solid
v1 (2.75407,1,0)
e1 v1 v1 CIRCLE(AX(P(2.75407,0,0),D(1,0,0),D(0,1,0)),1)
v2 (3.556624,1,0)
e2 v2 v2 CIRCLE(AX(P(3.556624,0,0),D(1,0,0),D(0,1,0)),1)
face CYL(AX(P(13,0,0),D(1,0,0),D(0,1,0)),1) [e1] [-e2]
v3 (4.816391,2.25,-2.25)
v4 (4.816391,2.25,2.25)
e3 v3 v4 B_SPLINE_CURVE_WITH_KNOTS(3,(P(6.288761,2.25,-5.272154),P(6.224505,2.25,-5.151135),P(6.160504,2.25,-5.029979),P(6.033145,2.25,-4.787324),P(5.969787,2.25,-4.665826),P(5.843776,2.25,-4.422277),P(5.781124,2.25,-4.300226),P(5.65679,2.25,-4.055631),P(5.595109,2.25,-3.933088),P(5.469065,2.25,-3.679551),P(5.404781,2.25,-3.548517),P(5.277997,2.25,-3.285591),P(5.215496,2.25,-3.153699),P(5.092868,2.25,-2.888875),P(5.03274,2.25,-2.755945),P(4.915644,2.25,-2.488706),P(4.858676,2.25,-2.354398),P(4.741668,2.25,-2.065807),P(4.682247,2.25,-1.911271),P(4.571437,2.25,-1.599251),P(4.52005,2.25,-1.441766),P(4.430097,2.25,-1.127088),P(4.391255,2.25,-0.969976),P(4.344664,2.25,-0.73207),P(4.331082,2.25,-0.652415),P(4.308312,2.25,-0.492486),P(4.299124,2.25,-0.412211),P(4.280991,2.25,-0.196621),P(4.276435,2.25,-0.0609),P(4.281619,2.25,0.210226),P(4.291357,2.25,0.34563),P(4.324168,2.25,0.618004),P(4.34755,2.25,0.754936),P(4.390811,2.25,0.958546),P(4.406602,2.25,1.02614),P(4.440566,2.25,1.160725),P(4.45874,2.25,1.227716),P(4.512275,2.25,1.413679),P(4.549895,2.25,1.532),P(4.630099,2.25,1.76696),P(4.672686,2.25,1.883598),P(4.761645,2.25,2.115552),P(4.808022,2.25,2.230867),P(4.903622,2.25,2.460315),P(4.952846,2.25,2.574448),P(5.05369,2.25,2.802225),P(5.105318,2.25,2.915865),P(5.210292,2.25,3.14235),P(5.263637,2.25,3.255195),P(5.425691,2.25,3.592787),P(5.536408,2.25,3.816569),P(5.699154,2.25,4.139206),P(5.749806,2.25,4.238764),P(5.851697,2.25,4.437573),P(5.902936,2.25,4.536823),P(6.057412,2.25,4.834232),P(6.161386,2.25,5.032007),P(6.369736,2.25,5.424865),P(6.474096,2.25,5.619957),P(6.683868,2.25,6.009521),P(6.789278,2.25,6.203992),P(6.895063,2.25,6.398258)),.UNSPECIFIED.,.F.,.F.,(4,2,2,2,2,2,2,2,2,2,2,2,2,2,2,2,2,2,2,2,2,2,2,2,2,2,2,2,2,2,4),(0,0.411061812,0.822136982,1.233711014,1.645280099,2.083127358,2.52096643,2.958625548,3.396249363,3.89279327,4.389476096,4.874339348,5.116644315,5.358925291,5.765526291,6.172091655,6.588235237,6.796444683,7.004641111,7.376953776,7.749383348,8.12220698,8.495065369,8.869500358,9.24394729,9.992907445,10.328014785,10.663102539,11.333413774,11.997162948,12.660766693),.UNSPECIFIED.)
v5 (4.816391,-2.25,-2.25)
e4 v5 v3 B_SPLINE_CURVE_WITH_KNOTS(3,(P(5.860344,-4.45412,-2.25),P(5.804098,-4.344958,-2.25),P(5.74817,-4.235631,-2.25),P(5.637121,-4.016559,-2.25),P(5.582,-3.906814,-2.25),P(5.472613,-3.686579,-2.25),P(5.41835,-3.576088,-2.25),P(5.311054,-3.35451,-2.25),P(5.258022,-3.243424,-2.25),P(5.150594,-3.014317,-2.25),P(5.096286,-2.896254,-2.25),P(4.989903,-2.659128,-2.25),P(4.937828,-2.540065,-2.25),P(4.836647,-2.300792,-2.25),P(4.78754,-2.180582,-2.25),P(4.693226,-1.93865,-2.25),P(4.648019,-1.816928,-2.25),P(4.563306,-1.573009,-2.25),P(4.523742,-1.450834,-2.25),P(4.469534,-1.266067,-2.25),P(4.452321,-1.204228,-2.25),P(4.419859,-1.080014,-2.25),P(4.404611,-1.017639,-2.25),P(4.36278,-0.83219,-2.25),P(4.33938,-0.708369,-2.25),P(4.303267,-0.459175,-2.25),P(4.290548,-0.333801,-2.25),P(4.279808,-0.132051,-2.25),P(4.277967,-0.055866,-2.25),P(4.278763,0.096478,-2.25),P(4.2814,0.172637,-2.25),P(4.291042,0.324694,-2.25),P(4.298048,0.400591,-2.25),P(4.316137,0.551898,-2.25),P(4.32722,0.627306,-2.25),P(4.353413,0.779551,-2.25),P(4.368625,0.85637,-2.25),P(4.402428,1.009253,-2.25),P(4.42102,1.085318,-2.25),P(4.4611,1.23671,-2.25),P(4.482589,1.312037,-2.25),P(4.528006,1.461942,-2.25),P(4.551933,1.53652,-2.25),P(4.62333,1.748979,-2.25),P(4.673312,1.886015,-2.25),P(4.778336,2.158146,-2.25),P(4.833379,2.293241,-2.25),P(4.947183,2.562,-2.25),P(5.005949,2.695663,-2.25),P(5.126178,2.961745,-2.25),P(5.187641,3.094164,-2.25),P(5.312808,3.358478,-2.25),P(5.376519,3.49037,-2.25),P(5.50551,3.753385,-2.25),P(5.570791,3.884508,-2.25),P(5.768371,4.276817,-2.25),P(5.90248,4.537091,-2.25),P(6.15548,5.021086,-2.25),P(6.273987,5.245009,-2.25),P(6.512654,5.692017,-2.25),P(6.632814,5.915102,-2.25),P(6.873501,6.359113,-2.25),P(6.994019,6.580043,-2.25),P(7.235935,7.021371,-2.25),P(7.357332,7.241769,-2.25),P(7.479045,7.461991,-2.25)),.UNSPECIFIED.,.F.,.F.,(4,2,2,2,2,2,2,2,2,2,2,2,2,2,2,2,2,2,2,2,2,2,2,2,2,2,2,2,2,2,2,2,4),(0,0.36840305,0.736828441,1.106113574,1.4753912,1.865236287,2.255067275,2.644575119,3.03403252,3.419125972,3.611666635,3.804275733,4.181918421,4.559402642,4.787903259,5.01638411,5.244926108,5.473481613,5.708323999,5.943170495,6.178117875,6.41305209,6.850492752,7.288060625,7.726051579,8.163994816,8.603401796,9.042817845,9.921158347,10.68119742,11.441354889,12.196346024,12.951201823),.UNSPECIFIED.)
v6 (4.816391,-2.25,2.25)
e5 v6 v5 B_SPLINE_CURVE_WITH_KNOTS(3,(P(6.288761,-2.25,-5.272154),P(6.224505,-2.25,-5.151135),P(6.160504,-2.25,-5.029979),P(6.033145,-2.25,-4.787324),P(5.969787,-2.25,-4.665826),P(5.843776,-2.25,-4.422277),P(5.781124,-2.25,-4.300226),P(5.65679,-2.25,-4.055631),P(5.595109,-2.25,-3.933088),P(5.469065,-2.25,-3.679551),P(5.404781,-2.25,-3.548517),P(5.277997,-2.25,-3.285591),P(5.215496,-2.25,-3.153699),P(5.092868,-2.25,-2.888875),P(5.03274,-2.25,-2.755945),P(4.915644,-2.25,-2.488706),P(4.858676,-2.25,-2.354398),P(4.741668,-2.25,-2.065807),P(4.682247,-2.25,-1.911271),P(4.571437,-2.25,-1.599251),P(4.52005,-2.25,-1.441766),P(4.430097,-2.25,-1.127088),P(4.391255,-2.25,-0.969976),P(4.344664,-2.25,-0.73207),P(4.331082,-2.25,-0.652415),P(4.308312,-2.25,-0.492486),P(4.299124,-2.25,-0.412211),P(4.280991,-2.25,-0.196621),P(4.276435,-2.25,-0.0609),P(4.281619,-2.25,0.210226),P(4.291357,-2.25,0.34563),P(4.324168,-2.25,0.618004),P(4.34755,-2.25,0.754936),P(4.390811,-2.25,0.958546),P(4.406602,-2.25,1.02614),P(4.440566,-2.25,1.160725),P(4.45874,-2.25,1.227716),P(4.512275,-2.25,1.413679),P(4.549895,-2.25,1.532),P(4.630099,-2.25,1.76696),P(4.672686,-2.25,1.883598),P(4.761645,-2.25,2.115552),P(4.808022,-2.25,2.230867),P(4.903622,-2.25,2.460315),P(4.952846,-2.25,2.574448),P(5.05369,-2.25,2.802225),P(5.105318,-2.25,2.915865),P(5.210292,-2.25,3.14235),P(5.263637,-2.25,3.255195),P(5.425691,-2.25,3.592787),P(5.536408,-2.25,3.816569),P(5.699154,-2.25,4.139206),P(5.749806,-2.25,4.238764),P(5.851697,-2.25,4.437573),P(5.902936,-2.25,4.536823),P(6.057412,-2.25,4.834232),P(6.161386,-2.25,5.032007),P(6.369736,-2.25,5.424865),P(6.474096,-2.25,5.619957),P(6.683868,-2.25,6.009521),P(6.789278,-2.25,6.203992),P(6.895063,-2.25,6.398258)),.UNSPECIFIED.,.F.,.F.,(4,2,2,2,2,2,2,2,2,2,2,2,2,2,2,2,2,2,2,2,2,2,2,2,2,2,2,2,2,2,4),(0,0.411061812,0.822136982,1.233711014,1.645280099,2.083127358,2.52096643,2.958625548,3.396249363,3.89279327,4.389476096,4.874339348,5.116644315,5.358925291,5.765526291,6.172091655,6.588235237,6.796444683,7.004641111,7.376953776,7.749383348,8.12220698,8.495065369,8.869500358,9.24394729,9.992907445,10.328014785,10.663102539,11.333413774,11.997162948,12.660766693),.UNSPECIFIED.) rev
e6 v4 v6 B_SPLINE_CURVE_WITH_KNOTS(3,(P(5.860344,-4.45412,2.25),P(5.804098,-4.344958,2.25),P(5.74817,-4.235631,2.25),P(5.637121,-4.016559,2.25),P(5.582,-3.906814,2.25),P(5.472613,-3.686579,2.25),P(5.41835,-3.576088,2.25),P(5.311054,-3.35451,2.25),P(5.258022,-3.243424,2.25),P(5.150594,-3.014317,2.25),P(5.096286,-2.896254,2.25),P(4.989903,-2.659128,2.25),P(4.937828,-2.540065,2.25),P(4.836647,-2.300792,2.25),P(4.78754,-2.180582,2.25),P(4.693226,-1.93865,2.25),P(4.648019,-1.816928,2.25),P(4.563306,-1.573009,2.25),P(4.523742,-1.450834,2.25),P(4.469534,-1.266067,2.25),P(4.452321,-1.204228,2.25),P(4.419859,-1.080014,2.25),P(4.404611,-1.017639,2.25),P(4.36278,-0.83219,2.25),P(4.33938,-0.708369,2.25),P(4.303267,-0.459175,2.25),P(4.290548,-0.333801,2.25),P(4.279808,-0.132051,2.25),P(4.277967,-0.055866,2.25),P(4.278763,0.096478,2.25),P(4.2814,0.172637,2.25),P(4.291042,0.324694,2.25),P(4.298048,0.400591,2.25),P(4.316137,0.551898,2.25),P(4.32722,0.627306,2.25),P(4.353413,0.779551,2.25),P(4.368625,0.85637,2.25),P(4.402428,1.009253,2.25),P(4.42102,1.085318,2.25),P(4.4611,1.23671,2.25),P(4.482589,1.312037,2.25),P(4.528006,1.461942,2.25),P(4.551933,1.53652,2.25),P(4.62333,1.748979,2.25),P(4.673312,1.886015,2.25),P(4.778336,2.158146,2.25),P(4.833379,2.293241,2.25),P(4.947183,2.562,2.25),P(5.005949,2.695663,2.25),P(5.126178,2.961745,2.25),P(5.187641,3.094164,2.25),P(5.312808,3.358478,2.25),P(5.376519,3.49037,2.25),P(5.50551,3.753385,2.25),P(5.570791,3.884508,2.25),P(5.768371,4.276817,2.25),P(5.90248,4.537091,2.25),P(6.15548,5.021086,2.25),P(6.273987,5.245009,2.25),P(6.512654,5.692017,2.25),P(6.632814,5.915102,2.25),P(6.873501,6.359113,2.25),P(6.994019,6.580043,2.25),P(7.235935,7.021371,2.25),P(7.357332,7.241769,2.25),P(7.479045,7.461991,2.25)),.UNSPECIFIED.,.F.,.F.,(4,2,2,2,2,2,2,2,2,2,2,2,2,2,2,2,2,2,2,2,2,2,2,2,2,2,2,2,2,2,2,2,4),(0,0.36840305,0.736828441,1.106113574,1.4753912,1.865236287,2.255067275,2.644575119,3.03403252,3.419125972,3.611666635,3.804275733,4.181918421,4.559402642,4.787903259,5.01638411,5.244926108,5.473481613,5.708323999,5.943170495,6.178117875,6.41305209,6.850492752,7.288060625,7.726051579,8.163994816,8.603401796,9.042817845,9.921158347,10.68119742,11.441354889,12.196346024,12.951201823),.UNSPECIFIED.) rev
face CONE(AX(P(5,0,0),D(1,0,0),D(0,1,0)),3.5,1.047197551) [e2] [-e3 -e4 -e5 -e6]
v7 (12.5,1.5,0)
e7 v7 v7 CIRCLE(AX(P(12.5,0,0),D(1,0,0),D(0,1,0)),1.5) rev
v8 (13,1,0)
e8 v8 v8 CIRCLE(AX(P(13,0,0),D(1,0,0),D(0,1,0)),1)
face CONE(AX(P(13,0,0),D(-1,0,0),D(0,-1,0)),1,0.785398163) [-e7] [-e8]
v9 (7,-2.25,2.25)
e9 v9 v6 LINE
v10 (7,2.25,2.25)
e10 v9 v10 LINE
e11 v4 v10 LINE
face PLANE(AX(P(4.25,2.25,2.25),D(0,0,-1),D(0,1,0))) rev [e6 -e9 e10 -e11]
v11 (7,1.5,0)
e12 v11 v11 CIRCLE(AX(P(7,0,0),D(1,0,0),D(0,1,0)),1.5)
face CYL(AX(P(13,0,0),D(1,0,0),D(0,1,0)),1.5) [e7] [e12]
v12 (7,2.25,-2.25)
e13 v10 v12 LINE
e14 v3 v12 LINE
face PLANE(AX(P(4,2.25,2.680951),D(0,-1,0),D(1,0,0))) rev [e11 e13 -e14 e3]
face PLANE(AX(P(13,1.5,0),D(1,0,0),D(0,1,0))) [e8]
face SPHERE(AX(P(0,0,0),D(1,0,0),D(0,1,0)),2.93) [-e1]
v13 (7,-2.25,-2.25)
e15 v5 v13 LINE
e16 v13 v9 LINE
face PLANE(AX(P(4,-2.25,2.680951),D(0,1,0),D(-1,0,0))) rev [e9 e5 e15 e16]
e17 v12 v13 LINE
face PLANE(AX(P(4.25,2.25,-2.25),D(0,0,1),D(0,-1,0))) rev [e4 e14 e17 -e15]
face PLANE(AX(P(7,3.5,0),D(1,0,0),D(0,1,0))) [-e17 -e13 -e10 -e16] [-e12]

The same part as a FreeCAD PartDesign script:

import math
import FreeCAD as App
import Part
import Sketcher
Q = App.Units.Quantity


def edges_at(feature, points):
    """Names of the edges that pass closest to the given points."""
    edges = feature.Shape.Edges
    near = lambda p: min(range(len(edges)), key=lambda i: edges[i].distToShape(Part.Vertex(*p))[0])
    return sorted({f"Edge{near(p) + 1}" for p in points})


def add_polygon(sketch, points):
    """Adds a closed chain of lines whose ends are joined by coincident constraints."""
    first, n = sketch.GeometryCount, len(points)
    for a, b in zip(points, points[1:] + points[:1]):
        sketch.addGeometry(Part.LineSegment(App.Vector(*a, 0), App.Vector(*b, 0)), False)
    for i in range(n):
        sketch.addConstraint(Sketcher.Constraint("Coincident", first + i, 2, first + (i + 1) % n, 1))

doc = App.newDocument("Part")
body = doc.addObject("PartDesign::Body", "Body")

sketch1 = doc.addObject("Sketcher::SketchObject", "Sketch")
body.addObject(sketch1)
sketch1.AttachmentSupport = (doc.XY_Plane, [""])
sketch1.MapMode = "FlatFace"
sketch1.addGeometry(Part.LineSegment(App.Vector(3.6, 1, 0), App.Vector(2.8, 1, 0)), False)
sketch1.addGeometry(Part.ArcOfCircle(Part.Circle(App.Vector(0, 0, 0), App.Vector(0, 0, 1), 2.9), math.radians(20), math.radians(180)), False)
sketch1.addGeometry(Part.LineSegment(App.Vector(-2.9, 0, 0), App.Vector(13, 0, 0)), False)
sketch1.addGeometry(Part.LineSegment(App.Vector(13, 0, 0), App.Vector(13, 1.5, 0)), False)
sketch1.addGeometry(Part.LineSegment(App.Vector(13, 1.5, 0), App.Vector(7, 1.5, 0)), False)
sketch1.addGeometry(Part.LineSegment(App.Vector(7, 1.5, 0), App.Vector(7, 3.5, 0)), False)
sketch1.addGeometry(Part.LineSegment(App.Vector(7, 3.5, 0), App.Vector(5, 3.5, 0)), False)
sketch1.addGeometry(Part.LineSegment(App.Vector(5, 3.5, 0), App.Vector(3.6, 1, 0)), False)
sketch1.addConstraint(Sketcher.Constraint("Coincident", 0, 2, 1, 1))
sketch1.addConstraint(Sketcher.Constraint("Coincident", 1, 2, 2, 1))
sketch1.addConstraint(Sketcher.Constraint("Coincident", 2, 2, 3, 1))
sketch1.addConstraint(Sketcher.Constraint("Coincident", 3, 2, 4, 1))
sketch1.addConstraint(Sketcher.Constraint("Coincident", 4, 2, 5, 1))
sketch1.addConstraint(Sketcher.Constraint("Coincident", 5, 2, 6, 1))
sketch1.addConstraint(Sketcher.Constraint("Coincident", 6, 2, 7, 1))
sketch1.addConstraint(Sketcher.Constraint("Coincident", 7, 2, 0, 1))
sketch1.addConstraint(Sketcher.Constraint("Horizontal", 0))
sketch1.addConstraint(Sketcher.Constraint("Horizontal", 2))
sketch1.addConstraint(Sketcher.Constraint("Vertical", 3))
sketch1.addConstraint(Sketcher.Constraint("Horizontal", 4))
sketch1.addConstraint(Sketcher.Constraint("Vertical", 5))
sketch1.addConstraint(Sketcher.Constraint("Horizontal", 6))
sketch1.addConstraint(Sketcher.Constraint("Coincident", 1, 3, -1, 1))
sketch1.addConstraint(Sketcher.Constraint("PointOnObject", 1, 2, -1))
sketch1.addConstraint(Sketcher.Constraint("Equal", 6, 5))
sketch1.addConstraint(Sketcher.Constraint("DistanceX", 4, 2, 4, 1, Q("6 mm")))
sketch1.addConstraint(Sketcher.Constraint("DistanceX", 6, 2, 6, 1, Q("2 mm")))
sketch1.addConstraint(Sketcher.Constraint("Angle", 7, Q("-120 deg")))
sketch1.addConstraint(Sketcher.Constraint("Radius", 1, Q("2.93 mm")))
sketch1.addConstraint(Sketcher.Constraint("DistanceY", 3, 1, 3, 2, Q("1.5 mm")))
sketch1.addConstraint(Sketcher.Constraint("DistanceY", -1, 1, 0, 2, Q("1 mm")))
sketch1.addConstraint(Sketcher.Constraint("DistanceX", -1, 1, 2, 2, Q("13 mm")))
revolution = doc.addObject("PartDesign::Revolution", "Revolution")
body.addObject(revolution)
revolution.Profile = sketch1
revolution.ReferenceAxis = (sketch1, ["H_Axis"])
revolution.Angle = 360

sketch2 = doc.addObject("Sketcher::SketchObject", "Sketch001")
body.addObject(sketch2)
sketch2.AttachmentSupport = (doc.YZ_Plane, [""])
sketch2.MapMode = "FlatFace"
sketch2.AttachmentOffset = App.Placement(App.Vector(0, 0, 7), App.Rotation())
add_polygon(sketch2, [(3.5, 2.7), (2.2, 2.7), (2.2, -2.7), (3.5, -2.7)])
add_polygon(sketch2, [(-2.2, 2.7), (-3.5, 2.7), (-3.5, -2.7), (-2.2, -2.7)])
sketch2.addConstraint(Sketcher.Constraint("Horizontal", 0))
sketch2.addConstraint(Sketcher.Constraint("Vertical", 1))
sketch2.addConstraint(Sketcher.Constraint("Horizontal", 2))
sketch2.addConstraint(Sketcher.Constraint("Vertical", 3))
sketch2.addConstraint(Sketcher.Constraint("Horizontal", 4))
sketch2.addConstraint(Sketcher.Constraint("Vertical", 5))
sketch2.addConstraint(Sketcher.Constraint("Horizontal", 6))
sketch2.addConstraint(Sketcher.Constraint("Vertical", 7))
sketch2.addConstraint(Sketcher.Constraint("Symmetric", 2, 2, 4, 2, -1, 1))
sketch2.addConstraint(Sketcher.Constraint("Symmetric", 0, 2, 6, 2, -1, 1))
sketch2.addConstraint(Sketcher.Constraint("Horizontal", 3, 2, 4, 2))
sketch2.addConstraint(Sketcher.Constraint("DistanceX", 4, 2, 3, 2, Q("7 mm")))
sketch2.addConstraint(Sketcher.Constraint("DistanceX", 0, 2, 0, 1, Q("1.25 mm")))
sketch2.addConstraint(Sketcher.Constraint("DistanceY", 1, 2, 1, 1, Q("5.361903 mm")))
pocket1 = doc.addObject("PartDesign::Pocket", "Pocket")
body.addObject(pocket1)
pocket1.Profile = sketch2
pocket1.Length = 3

sketch3 = doc.addObject("Sketcher::SketchObject", "Sketch002")
body.addObject(sketch3)
sketch3.AttachmentSupport = (doc.YZ_Plane, [""])
sketch3.MapMode = "FlatFace"
sketch3.AttachmentOffset = App.Placement(App.Vector(0, 0, 7), App.Rotation())
add_polygon(sketch3, [(2.2, -2.2), (-2.2, -2.2), (-2.2, -3.5), (2.2, -3.5)])
add_polygon(sketch3, [(2.2, 3.5), (-2.2, 3.5), (-2.2, 2.2), (2.2, 2.2)])
sketch3.addConstraint(Sketcher.Constraint("Horizontal", 0))
sketch3.addConstraint(Sketcher.Constraint("Vertical", 1))
sketch3.addConstraint(Sketcher.Constraint("Horizontal", 2))
sketch3.addConstraint(Sketcher.Constraint("Vertical", 3))
sketch3.addConstraint(Sketcher.Constraint("Horizontal", 4))
sketch3.addConstraint(Sketcher.Constraint("Vertical", 5))
sketch3.addConstraint(Sketcher.Constraint("Horizontal", 6))
sketch3.addConstraint(Sketcher.Constraint("Vertical", 7))
sketch3.addConstraint(Sketcher.Constraint("Symmetric", 2, 2, 4, 2, -1, 1))
sketch3.addConstraint(Sketcher.Constraint("Symmetric", 0, 2, 6, 2, -1, 1))
sketch3.addConstraint(Sketcher.Constraint("Vertical", 1, 2, 4, 2))
sketch3.addConstraint(Sketcher.Constraint("DistanceX", 0, 2, 0, 1, Q("4.5 mm")))
sketch3.addConstraint(Sketcher.Constraint("DistanceY", 1, 2, 4, 2, Q("7 mm")))
sketch3.addConstraint(Sketcher.Constraint("DistanceY", 1, 2, 1, 1, Q("1.25 mm")))
pocket2 = doc.addObject("PartDesign::Pocket", "Pocket001")
body.addObject(pocket2)
pocket2.Profile = sketch3
pocket2.Length = 2.75
doc.recompute()

chamfer = doc.addObject("PartDesign::Chamfer", "Chamfer")
body.addObject(chamfer)
chamfer.Base = (pocket2, edges_at(pocket2, [(13, -1.5, 0)]))
chamfer.Size = 0.5

doc.recompute()
